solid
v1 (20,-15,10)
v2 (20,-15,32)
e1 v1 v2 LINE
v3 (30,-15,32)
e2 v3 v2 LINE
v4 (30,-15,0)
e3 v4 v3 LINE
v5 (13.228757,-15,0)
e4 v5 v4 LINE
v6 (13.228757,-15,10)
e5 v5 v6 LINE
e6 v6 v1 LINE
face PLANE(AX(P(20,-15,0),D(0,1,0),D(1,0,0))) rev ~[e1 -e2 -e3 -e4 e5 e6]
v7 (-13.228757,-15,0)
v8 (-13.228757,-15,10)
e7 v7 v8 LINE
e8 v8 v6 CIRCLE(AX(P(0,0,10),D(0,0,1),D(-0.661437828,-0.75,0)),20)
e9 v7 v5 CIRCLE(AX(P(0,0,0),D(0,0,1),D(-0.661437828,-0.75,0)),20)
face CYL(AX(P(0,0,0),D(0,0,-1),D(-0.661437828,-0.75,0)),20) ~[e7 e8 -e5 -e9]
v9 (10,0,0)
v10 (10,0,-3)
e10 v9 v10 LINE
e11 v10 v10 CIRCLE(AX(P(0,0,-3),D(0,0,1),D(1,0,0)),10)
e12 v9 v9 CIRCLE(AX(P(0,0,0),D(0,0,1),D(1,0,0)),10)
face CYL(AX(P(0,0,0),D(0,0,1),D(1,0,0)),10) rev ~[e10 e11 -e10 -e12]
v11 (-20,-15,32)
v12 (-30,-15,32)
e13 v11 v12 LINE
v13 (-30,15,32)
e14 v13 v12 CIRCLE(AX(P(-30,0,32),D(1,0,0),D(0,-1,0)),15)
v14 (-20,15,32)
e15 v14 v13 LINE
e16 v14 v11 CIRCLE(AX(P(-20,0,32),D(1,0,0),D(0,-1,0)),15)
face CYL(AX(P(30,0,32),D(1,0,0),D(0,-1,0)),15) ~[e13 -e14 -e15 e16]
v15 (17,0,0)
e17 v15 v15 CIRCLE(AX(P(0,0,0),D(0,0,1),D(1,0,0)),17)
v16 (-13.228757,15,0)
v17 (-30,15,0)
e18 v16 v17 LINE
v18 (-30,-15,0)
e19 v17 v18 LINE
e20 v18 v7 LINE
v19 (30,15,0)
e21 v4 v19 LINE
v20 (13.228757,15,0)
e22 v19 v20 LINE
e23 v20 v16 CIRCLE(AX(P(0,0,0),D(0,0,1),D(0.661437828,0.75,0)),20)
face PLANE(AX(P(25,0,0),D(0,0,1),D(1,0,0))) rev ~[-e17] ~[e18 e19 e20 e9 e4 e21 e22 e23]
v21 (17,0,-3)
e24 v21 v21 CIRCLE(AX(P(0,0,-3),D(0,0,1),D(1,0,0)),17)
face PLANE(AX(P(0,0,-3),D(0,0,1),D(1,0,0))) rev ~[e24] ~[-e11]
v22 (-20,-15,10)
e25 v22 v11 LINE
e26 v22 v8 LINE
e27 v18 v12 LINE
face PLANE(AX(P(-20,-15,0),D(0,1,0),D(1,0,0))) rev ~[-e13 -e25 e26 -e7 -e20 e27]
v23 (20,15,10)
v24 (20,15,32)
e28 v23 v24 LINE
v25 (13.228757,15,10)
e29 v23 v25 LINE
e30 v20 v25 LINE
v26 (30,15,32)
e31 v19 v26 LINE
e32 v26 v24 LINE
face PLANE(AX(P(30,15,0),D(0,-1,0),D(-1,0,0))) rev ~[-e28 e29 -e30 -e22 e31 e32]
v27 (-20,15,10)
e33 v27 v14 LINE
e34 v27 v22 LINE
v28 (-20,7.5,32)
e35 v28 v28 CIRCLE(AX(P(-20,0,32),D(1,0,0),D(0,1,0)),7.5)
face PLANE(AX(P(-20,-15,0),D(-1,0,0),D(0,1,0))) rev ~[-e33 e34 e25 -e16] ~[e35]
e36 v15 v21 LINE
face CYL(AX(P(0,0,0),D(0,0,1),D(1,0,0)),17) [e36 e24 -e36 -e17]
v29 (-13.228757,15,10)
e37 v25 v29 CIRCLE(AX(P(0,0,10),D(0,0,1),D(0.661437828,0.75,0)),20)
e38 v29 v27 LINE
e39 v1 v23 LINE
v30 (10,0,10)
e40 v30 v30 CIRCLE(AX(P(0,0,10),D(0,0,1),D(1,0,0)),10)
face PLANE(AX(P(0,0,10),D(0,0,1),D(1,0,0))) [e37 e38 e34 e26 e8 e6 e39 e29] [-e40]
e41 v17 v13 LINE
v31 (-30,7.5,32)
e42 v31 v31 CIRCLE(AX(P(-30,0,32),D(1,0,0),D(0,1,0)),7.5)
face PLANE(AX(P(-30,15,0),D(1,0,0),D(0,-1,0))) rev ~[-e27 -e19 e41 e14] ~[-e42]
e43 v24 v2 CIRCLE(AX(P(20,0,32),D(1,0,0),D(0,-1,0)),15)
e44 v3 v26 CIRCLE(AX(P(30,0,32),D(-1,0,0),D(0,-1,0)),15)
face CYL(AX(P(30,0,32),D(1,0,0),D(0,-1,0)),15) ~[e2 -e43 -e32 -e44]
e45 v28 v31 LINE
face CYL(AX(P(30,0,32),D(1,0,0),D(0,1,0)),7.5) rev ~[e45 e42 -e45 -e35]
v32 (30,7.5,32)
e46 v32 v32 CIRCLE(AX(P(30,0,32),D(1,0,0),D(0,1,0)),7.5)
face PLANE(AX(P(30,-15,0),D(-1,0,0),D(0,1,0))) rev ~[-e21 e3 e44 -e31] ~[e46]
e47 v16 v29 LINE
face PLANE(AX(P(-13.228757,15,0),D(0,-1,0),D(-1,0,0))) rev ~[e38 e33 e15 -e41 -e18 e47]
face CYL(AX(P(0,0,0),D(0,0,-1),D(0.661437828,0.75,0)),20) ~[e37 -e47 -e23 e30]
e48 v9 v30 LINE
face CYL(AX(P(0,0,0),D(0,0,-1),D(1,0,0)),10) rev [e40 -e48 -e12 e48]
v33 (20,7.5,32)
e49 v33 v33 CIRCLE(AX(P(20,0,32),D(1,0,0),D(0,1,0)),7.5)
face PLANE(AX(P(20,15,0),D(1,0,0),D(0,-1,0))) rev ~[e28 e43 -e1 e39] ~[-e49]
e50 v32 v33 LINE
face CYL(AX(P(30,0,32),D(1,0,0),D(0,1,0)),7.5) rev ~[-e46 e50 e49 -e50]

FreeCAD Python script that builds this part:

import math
import FreeCAD as App
import Part
import Sketcher
from FreeCAD import Vector

doc = App.newDocument("Part")
body = doc.addObject("PartDesign::Body", "Body")

sketch1 = doc.addObject("Sketcher::SketchObject", "Sketch")
body.addObject(sketch1)
sketch1.AttachmentSupport = (doc.XY_Plane, [""])
sketch1.MapMode = "FlatFace"
sketch1.addGeometry([
    Part.LineSegment(Vector(20, 15, 0), Vector(13, 15, 0)),
    Part.ArcOfCircle(Part.Circle(Vector(0, 0, 0), Vector(0, 0, 1), 20), math.radians(49), math.radians(131)),
    Part.LineSegment(Vector(-13, 15, 0), Vector(-20, 15, 0)),
    Part.LineSegment(Vector(-20, 15, 0), Vector(-20, -15, 0)),
    Part.LineSegment(Vector(-20, -15, 0), Vector(-13, -15, 0)),
    Part.ArcOfCircle(Part.Circle(Vector(0, 0, 0), Vector(0, 0, 1), 20), math.radians(-131), math.radians(-49)),
    Part.LineSegment(Vector(13, -15, 0), Vector(20, -15, 0)),
    Part.LineSegment(Vector(20, -15, 0), Vector(20, 15, 0)),
    Part.Circle(Vector(0, 0, 0), Vector(0, 0, 1), 10),
], False)
sketch1.addConstraint([
    Sketcher.Constraint("Coincident", 0, 2, 1, 1),
    Sketcher.Constraint("Coincident", 1, 2, 2, 1),
    Sketcher.Constraint("Coincident", 2, 2, 3, 1),
    Sketcher.Constraint("Coincident", 3, 2, 4, 1),
    Sketcher.Constraint("Coincident", 4, 2, 5, 1),
    Sketcher.Constraint("Coincident", 5, 2, 6, 1),
    Sketcher.Constraint("Coincident", 6, 2, 7, 1),
    Sketcher.Constraint("Coincident", 7, 2, 0, 1),
    Sketcher.Constraint("Horizontal", 0),
    Sketcher.Constraint("Horizontal", 2),
    Sketcher.Constraint("Vertical", 3),
    Sketcher.Constraint("Horizontal", 4),
    Sketcher.Constraint("Horizontal", 6),
    Sketcher.Constraint("Vertical", 7),
    Sketcher.Constraint("Coincident", 1, 3, -1, 1),
    Sketcher.Constraint("Coincident", 5, 3, -1, 1),
    Sketcher.Constraint("Coincident", 8, 3, -1, 1),
    Sketcher.Constraint("Equal", 1, 5),
    Sketcher.Constraint("Symmetric", 2, 2, 6, 2, -1, 1),
    Sketcher.Constraint("Horizontal", 0, 2, 1, 2),
    Sketcher.Constraint("Horizontal", 4, 2, 5, 2),
    Sketcher.Constraint("Diameter", 8, 20.0),
    Sketcher.Constraint("Radius", 1, 20.0),
    Sketcher.Constraint("DistanceY", 3, 2, 3, 1, 30.0),
    Sketcher.Constraint("DistanceX", 2, 2, -1, 1, 20.0),
])
pad1 = doc.addObject("PartDesign::Pad", "Pad")
body.addObject(pad1)
pad1.Profile = sketch1
pad1.Length = 10

sketch2 = doc.addObject("Sketcher::SketchObject", "Sketch001")
body.addObject(sketch2)
sketch2.AttachmentSupport = (doc.XY_Plane, [""])
sketch2.MapMode = "FlatFace"
sketch2.addGeometry([
    Part.LineSegment(Vector(20, 15, 0), Vector(20, -15, 0)),
    Part.LineSegment(Vector(20, -15, 0), Vector(30, -15, 0)),
    Part.LineSegment(Vector(30, -15, 0), Vector(30, 15, 0)),
    Part.LineSegment(Vector(30, 15, 0), Vector(20, 15, 0)),
    Part.LineSegment(Vector(-20, -15, 0), Vector(-20, 15, 0)),
    Part.LineSegment(Vector(-20, 15, 0), Vector(-30, 15, 0)),
    Part.LineSegment(Vector(-30, 15, 0), Vector(-30, -15, 0)),
    Part.LineSegment(Vector(-30, -15, 0), Vector(-20, -15, 0)),
], False)
sketch2.addConstraint([
    Sketcher.Constraint("Coincident", 0, 2, 1, 1),
    Sketcher.Constraint("Coincident", 1, 2, 2, 1),
    Sketcher.Constraint("Coincident", 2, 2, 3, 1),
    Sketcher.Constraint("Coincident", 3, 2, 0, 1),
    Sketcher.Constraint("Coincident", 4, 2, 5, 1),
    Sketcher.Constraint("Coincident", 5, 2, 6, 1),
    Sketcher.Constraint("Coincident", 6, 2, 7, 1),
    Sketcher.Constraint("Coincident", 7, 2, 4, 1),
    Sketcher.Constraint("Vertical", 0),
    Sketcher.Constraint("Horizontal", 1),
    Sketcher.Constraint("Vertical", 2),
    Sketcher.Constraint("Horizontal", 3),
    Sketcher.Constraint("Vertical", 4),
    Sketcher.Constraint("Horizontal", 5),
    Sketcher.Constraint("Vertical", 6),
    Sketcher.Constraint("Horizontal", 7),
    Sketcher.Constraint("Symmetric", 0, 2, 4, 2, -1, 1),
    Sketcher.Constraint("Symmetric", 2, 2, 6, 2, -1, 1),
    Sketcher.Constraint("Horizontal", 3, 2, 4, 2),
    Sketcher.Constraint("DistanceX", 1, 1, 1, 2, 10.0),
    Sketcher.Constraint("DistanceY", 0, 2, 0, 1, 30.0),
    Sketcher.Constraint("DistanceX", -1, 1, 0, 2, 20.0),
])
pad2 = doc.addObject("PartDesign::Pad", "Pad001")
body.addObject(pad2)
pad2.Profile = sketch2
pad2.Length = 47.5

sketch3 = doc.addObject("Sketcher::SketchObject", "Sketch002")
body.addObject(sketch3)
sketch3.AttachmentSupport = (doc.YZ_Plane, [""])
sketch3.MapMode = "FlatFace"
sketch3.AttachmentOffset = App.Placement(Vector(0, 0, 30), App.Rotation())
sketch3.addGeometry([
    Part.LineSegment(Vector(15, 48, 0), Vector(-15, 48, 0)),
    Part.LineSegment(Vector(-15, 48, 0), Vector(-15, 32, 0)),
    Part.ArcOfCircle(Part.Circle(Vector(0, 32, 0), Vector(0, 0, 1), 15), math.radians(0), math.radians(180)),
    Part.LineSegment(Vector(15, 32, 0), Vector(15, 48, 0)),
    Part.Circle(Vector(0, 32, 0), Vector(0, 0, 1), 8),
], False)
sketch3.addConstraint([
    Sketcher.Constraint("Coincident", 0, 2, 1, 1),
    Sketcher.Constraint("Tangent", 1, 2, 2, 2),
    Sketcher.Constraint("Tangent", 2, 1, 3, 1),
    Sketcher.Constraint("Coincident", 3, 2, 0, 1),
    Sketcher.Constraint("Horizontal", 0),
    Sketcher.Constraint("Vertical", 1),
    Sketcher.Constraint("Vertical", 3),
    Sketcher.Constraint("Coincident", 4, 3, 2, 3),
    Sketcher.Constraint("PointOnObject", 2, 3, -2),
    Sketcher.Constraint("Diameter", 4, 15.0),
    Sketcher.Constraint("Radius", 2, 15.0),
    Sketcher.Constraint("DistanceY", 1, 2, 1, 1, 15.5),
    Sketcher.Constraint("DistanceY", -1, 1, 2, 3, 32.0),
])
pocket1 = doc.addObject("PartDesign::Pocket", "Pocket")
body.addObject(pocket1)
pocket1.Profile = sketch3
pocket1.Type = "ThroughAll"

sketch4 = doc.addObject("Sketcher::SketchObject", "Sketch003")
body.addObject(sketch4)
sketch4.AttachmentSupport = (doc.XY_Plane, [""])
sketch4.MapMode = "FlatFace"
sketch4.addGeometry([
    Part.Circle(Vector(0, 0, 0), Vector(0, 0, 1), 17),
    Part.Circle(Vector(0, 0, 0), Vector(0, 0, 1), 10),
], False)
sketch4.addConstraint([
    Sketcher.Constraint("Coincident", 0, 3, -1, 1),
    Sketcher.Constraint("Coincident", 1, 3, -1, 1),
    Sketcher.Constraint("Diameter", 0, 34.0),
    Sketcher.Constraint("Diameter", 1, 20.0),
])
pad3 = doc.addObject("PartDesign::Pad", "Pad002")
body.addObject(pad3)
pad3.Profile = sketch4
pad3.Length = 3
pad3.Reversed = True

doc.recompute()
